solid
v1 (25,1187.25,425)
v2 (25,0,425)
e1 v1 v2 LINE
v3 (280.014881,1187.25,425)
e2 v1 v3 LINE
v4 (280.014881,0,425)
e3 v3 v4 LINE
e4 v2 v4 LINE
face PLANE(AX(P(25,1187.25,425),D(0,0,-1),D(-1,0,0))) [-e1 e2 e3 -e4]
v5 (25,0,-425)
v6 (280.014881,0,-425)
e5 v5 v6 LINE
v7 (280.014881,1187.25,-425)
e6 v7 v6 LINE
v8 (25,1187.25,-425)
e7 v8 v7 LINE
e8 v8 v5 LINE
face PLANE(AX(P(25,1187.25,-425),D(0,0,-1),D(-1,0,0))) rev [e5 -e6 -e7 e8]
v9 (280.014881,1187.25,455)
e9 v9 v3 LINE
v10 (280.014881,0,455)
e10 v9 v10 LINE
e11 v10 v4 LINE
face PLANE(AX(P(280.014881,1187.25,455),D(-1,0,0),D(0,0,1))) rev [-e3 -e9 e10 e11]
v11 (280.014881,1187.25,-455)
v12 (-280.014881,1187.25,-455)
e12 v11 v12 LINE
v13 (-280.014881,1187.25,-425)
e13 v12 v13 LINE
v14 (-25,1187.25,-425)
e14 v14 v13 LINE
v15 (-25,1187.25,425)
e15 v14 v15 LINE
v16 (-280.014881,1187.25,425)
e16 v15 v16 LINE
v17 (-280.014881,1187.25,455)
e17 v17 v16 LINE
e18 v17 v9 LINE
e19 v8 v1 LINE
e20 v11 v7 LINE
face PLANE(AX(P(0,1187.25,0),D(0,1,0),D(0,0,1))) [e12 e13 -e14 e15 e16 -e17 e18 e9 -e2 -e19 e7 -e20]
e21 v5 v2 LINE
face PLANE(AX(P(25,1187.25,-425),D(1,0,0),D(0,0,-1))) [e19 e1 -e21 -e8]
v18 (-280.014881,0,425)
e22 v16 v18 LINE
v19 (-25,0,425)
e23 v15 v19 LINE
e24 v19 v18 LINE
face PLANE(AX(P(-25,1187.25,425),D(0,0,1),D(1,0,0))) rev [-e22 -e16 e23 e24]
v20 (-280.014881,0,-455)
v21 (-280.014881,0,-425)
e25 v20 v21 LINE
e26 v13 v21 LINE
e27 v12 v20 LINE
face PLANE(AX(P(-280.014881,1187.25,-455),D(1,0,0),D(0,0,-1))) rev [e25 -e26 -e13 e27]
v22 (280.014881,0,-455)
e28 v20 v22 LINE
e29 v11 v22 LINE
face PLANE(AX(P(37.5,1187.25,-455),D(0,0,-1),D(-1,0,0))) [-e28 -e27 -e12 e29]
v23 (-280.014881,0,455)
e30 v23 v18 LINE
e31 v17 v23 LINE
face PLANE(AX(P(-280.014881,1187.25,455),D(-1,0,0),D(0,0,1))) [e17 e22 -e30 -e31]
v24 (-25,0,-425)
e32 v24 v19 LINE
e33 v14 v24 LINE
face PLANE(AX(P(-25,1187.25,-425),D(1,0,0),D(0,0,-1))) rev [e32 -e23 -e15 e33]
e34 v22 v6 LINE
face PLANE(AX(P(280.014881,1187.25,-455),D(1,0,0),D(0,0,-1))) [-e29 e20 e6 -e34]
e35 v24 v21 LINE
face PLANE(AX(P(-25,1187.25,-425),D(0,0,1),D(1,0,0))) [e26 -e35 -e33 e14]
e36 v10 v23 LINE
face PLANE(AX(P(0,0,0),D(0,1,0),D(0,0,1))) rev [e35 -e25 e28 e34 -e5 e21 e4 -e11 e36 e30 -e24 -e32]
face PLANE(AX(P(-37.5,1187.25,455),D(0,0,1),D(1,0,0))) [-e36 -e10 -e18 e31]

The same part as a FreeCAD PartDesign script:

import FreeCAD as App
import Part
import Sketcher
Q = App.Units.Quantity

doc = App.newDocument("Part")
body = doc.addObject("PartDesign::Body", "Body")

sketch1 = body.newObject("Sketcher::SketchObject", "Sketch")
sketch1.AttachmentSupport = (doc.getObject("XZ_Plane"), [""])
sketch1.MapMode = "FlatFace"
sketch1.addGeometry(Part.LineSegment(App.Vector(280, -455, 0), App.Vector(-280, -455, 0)), False)
sketch1.addGeometry(Part.LineSegment(App.Vector(-280, -455, 0), App.Vector(-280, -425, 0)), False)
sketch1.addGeometry(Part.LineSegment(App.Vector(-280, -425, 0), App.Vector(-25, -425, 0)), False)
sketch1.addGeometry(Part.LineSegment(App.Vector(-25, -425, 0), App.Vector(-25, 425, 0)), False)
sketch1.addGeometry(Part.LineSegment(App.Vector(-25, 425, 0), App.Vector(-280, 425, 0)), False)
sketch1.addGeometry(Part.LineSegment(App.Vector(-280, 425, 0), App.Vector(-280, 455, 0)), False)
sketch1.addGeometry(Part.LineSegment(App.Vector(-280, 455, 0), App.Vector(280, 455, 0)), False)
sketch1.addGeometry(Part.LineSegment(App.Vector(280, 455, 0), App.Vector(280, 425, 0)), False)
sketch1.addGeometry(Part.LineSegment(App.Vector(280, 425, 0), App.Vector(25, 425, 0)), False)
sketch1.addGeometry(Part.LineSegment(App.Vector(25, 425, 0), App.Vector(25, -425, 0)), False)
sketch1.addGeometry(Part.LineSegment(App.Vector(25, -425, 0), App.Vector(280, -425, 0)), False)
sketch1.addGeometry(Part.LineSegment(App.Vector(280, -425, 0), App.Vector(280, -455, 0)), False)
sketch1.addConstraint(Sketcher.Constraint("Coincident", 0, 2, 1, 1))
sketch1.addConstraint(Sketcher.Constraint("Coincident", 1, 2, 2, 1))
sketch1.addConstraint(Sketcher.Constraint("Coincident", 2, 2, 3, 1))
sketch1.addConstraint(Sketcher.Constraint("Coincident", 3, 2, 4, 1))
sketch1.addConstraint(Sketcher.Constraint("Coincident", 4, 2, 5, 1))
sketch1.addConstraint(Sketcher.Constraint("Coincident", 5, 2, 6, 1))
sketch1.addConstraint(Sketcher.Constraint("Coincident", 6, 2, 7, 1))
sketch1.addConstraint(Sketcher.Constraint("Coincident", 7, 2, 8, 1))
sketch1.addConstraint(Sketcher.Constraint("Coincident", 8, 2, 9, 1))
sketch1.addConstraint(Sketcher.Constraint("Coincident", 9, 2, 10, 1))
sketch1.addConstraint(Sketcher.Constraint("Coincident", 10, 2, 11, 1))
sketch1.addConstraint(Sketcher.Constraint("Coincident", 11, 2, 0, 1))
sketch1.addConstraint(Sketcher.Constraint("Horizontal", 0))
sketch1.addConstraint(Sketcher.Constraint("Vertical", 1))
sketch1.addConstraint(Sketcher.Constraint("Horizontal", 2))
sketch1.addConstraint(Sketcher.Constraint("Vertical", 3))
sketch1.addConstraint(Sketcher.Constraint("Horizontal", 4))
sketch1.addConstraint(Sketcher.Constraint("Vertical", 5))
sketch1.addConstraint(Sketcher.Constraint("Horizontal", 6))
sketch1.addConstraint(Sketcher.Constraint("Vertical", 7))
sketch1.addConstraint(Sketcher.Constraint("Horizontal", 8))
sketch1.addConstraint(Sketcher.Constraint("Vertical", 9))
sketch1.addConstraint(Sketcher.Constraint("Horizontal", 10))
sketch1.addConstraint(Sketcher.Constraint("Vertical", 11))
sketch1.addConstraint(Sketcher.Constraint("Symmetric", 0, 2, 6, 2, -1, 1))
sketch1.addConstraint(Sketcher.Constraint("Symmetric", 2, 2, 8, 2, -1, 1))
sketch1.addConstraint(Sketcher.Constraint("Symmetric", 4, 2, 10, 2, -1, 1))
sketch1.addConstraint(Sketcher.Constraint("Symmetric", 4, 2, 7, 2, -2))
sketch1.addConstraint(Sketcher.Constraint("DistanceY", 1, 1, 1, 2, Q("30 mm")))
sketch1.addConstraint(Sketcher.Constraint("DistanceY", 3, 1, 3, 2, Q("850 mm")))
sketch1.addConstraint(Sketcher.Constraint("DistanceX", 2, 2, -1, 1, Q("25 mm")))
sketch1.addConstraint(Sketcher.Constraint("DistanceX", 0, 2, 0, 1, Q("560.029761 mm")))
pad1 = body.newObject("PartDesign::Pad", "Pad")
pad1.Profile = sketch1
pad1.Length = 1187.25
pad1.Reversed = True

doc.recompute()
